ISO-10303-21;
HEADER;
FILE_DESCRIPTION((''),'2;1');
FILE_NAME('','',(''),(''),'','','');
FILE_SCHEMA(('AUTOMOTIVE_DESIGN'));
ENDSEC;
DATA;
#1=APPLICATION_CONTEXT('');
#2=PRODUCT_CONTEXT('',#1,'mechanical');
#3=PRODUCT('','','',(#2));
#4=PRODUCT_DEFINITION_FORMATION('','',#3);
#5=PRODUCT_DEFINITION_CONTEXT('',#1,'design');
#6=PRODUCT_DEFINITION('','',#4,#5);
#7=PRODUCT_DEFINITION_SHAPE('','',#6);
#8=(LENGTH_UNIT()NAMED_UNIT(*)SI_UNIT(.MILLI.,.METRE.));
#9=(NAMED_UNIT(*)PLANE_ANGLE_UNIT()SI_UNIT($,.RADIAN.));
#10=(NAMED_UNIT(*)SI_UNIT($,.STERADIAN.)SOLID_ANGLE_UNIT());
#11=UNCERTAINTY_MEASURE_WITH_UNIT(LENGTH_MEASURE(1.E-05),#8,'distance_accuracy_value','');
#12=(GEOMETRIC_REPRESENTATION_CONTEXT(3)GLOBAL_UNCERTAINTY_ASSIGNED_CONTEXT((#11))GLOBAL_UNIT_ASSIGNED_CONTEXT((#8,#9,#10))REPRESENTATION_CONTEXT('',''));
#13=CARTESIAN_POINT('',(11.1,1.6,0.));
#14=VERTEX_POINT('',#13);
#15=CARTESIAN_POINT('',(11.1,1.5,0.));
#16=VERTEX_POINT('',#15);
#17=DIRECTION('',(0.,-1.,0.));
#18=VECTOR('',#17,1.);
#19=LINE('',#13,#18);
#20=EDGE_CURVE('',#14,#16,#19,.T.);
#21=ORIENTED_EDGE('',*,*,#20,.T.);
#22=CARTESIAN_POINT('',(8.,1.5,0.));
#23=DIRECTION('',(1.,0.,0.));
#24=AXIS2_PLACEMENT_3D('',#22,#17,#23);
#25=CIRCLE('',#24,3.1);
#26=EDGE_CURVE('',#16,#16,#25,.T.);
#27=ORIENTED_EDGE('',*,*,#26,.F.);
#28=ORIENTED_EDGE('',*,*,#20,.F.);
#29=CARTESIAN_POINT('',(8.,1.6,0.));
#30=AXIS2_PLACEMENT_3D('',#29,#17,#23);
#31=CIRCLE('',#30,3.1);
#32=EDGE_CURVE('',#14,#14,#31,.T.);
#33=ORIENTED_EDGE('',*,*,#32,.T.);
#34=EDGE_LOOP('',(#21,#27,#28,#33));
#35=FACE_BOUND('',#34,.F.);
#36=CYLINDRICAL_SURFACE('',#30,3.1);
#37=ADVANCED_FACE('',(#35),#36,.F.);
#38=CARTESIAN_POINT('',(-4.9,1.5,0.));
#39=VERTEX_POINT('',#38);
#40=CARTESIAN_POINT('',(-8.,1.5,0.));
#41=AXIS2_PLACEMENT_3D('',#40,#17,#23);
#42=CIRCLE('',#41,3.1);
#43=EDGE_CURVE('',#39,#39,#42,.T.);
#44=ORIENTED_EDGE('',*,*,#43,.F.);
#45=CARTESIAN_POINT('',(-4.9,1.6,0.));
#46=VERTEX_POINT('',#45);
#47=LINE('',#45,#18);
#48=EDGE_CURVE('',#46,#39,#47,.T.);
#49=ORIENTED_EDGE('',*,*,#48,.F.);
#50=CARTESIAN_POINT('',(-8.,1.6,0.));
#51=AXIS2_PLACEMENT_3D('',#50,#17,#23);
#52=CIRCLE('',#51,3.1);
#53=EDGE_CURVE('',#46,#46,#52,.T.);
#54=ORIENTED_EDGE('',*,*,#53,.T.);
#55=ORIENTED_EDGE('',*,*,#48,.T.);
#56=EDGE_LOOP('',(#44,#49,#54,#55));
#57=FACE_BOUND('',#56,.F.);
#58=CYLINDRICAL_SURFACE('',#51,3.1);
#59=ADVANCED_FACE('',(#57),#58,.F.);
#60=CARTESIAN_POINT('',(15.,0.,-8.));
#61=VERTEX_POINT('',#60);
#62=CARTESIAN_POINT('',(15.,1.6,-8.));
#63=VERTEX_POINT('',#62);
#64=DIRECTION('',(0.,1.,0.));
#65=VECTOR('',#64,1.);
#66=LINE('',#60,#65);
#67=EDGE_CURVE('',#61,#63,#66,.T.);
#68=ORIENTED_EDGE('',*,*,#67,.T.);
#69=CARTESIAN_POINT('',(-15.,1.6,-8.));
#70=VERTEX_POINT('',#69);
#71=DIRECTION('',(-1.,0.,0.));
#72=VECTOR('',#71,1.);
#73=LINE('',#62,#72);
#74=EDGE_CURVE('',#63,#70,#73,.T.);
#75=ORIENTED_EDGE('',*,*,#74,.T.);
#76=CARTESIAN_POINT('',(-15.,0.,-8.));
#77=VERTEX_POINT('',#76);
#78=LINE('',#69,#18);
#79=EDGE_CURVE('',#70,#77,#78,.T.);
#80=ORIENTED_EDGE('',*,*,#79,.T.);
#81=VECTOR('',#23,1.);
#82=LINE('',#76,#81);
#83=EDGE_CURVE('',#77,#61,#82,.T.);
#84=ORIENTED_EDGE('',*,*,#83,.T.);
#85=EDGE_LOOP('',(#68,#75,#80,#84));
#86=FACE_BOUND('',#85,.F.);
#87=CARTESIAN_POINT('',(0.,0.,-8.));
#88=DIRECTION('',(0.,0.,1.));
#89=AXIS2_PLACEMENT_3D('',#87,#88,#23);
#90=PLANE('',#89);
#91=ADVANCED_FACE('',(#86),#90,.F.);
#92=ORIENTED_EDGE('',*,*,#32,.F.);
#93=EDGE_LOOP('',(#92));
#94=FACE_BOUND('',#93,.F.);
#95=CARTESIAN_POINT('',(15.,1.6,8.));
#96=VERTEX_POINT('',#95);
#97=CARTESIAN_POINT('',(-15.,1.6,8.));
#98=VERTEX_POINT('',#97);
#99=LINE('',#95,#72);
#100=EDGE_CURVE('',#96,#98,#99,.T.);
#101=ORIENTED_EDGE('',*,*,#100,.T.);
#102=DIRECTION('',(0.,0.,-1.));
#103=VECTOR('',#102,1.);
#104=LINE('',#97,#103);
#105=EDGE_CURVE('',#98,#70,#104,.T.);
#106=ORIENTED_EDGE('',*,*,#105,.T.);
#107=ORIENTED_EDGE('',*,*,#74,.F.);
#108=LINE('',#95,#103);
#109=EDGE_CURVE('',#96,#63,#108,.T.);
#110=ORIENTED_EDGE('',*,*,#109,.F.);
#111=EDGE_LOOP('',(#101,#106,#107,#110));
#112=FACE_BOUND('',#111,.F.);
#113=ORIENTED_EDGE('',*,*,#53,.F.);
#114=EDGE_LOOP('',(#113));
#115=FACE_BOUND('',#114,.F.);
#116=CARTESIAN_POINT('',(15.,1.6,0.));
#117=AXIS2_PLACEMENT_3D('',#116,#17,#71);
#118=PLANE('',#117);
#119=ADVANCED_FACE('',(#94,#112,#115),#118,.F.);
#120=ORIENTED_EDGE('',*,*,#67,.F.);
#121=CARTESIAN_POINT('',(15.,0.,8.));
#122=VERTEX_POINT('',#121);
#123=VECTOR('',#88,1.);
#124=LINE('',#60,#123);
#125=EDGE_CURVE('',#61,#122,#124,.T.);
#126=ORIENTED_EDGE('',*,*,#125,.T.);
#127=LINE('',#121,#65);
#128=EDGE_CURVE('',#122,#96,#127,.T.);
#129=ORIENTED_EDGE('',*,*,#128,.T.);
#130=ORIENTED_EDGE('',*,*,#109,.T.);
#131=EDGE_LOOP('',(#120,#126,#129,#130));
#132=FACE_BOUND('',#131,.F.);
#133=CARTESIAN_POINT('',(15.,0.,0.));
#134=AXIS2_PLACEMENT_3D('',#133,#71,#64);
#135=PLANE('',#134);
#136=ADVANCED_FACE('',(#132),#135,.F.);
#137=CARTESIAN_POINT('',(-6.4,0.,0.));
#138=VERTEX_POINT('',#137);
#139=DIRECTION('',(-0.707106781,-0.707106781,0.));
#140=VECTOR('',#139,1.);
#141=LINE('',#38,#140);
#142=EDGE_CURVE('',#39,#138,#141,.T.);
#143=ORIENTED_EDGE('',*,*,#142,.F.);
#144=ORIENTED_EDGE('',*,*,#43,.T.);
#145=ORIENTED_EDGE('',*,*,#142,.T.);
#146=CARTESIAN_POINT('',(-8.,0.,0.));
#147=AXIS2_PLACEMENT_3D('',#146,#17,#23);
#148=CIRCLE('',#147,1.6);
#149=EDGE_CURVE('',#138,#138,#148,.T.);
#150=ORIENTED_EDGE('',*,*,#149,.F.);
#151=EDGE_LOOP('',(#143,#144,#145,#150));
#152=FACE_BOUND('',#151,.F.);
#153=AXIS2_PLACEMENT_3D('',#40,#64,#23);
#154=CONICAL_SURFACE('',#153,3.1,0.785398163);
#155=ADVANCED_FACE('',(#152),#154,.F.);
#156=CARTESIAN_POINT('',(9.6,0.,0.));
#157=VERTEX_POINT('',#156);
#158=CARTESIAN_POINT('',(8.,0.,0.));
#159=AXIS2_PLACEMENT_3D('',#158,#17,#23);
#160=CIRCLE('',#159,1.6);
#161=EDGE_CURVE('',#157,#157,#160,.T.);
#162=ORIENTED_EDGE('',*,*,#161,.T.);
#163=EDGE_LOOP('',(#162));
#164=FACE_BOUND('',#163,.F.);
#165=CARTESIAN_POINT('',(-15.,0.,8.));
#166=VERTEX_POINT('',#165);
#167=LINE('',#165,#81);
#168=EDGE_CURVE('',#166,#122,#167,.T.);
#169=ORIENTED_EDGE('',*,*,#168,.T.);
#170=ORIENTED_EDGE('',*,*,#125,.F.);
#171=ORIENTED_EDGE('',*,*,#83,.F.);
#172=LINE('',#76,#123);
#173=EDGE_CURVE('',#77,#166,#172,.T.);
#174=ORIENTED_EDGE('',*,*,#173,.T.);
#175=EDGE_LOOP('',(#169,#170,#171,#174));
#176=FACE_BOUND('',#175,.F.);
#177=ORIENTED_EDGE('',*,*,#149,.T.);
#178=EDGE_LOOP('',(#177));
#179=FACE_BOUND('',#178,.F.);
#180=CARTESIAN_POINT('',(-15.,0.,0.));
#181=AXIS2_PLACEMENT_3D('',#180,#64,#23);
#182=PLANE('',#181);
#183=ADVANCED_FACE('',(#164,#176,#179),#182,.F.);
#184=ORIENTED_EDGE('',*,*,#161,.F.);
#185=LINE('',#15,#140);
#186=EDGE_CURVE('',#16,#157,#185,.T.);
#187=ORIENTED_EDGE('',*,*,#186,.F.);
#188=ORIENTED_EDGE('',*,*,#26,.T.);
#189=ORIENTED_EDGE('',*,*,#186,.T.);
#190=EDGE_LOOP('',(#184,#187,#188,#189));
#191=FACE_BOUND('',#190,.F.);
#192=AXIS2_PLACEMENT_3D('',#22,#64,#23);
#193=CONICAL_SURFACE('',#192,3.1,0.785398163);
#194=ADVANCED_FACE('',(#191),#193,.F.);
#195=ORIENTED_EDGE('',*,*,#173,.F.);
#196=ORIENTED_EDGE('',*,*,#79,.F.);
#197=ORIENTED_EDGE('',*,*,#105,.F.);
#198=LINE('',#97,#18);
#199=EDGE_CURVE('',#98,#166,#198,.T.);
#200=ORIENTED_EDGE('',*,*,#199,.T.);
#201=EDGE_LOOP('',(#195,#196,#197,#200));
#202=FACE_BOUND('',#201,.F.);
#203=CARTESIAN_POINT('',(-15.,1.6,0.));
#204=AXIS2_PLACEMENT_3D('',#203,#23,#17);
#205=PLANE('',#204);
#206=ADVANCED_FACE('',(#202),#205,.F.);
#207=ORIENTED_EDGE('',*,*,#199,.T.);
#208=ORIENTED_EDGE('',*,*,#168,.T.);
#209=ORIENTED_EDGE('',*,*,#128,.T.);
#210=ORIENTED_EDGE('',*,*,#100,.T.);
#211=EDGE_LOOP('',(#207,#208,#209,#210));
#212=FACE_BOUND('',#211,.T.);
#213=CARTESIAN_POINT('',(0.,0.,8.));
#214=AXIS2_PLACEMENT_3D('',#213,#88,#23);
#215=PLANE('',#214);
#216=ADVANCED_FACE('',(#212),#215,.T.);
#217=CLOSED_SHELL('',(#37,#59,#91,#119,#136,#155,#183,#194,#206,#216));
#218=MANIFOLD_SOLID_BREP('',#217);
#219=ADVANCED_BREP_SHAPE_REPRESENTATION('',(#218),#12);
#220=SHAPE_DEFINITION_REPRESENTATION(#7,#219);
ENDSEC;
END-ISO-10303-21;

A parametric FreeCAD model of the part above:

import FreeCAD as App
import Part
import Sketcher
Q = App.Units.Quantity


def add_polygon(sketch, points):
    """Adds a closed chain of lines whose ends are joined by coincident constraints."""
    first, n = sketch.GeometryCount, len(points)
    for a, b in zip(points, points[1:] + points[:1]):
        sketch.addGeometry(Part.LineSegment(App.Vector(*a, 0), App.Vector(*b, 0)), False)
    for i in range(n):
        sketch.addConstraint(Sketcher.Constraint("Coincident", first + i, 2, first + (i + 1) % n, 1))

doc = App.newDocument("Part")
body = doc.addObject("PartDesign::Body", "Body")

# Sketch on XY plane
sketch1 = body.newObject("Sketcher::SketchObject", "Sketch")
sketch1.AttachmentSupport = (doc.getObject("XY_Plane"), [""])
sketch1.MapMode = "FlatFace"
add_polygon(sketch1, [(-15, 1.6), (-15, 0), (15, 0), (15, 1.6)])  # lines 0-3
sketch1.addConstraint(Sketcher.Constraint("Vertical", 0))
sketch1.addConstraint(Sketcher.Constraint("Horizontal", 1))
sketch1.addConstraint(Sketcher.Constraint("Vertical", 2))
sketch1.addConstraint(Sketcher.Constraint("Horizontal", 3))
sketch1.addConstraint(Sketcher.Constraint("Symmetric", 0, 2, 1, 2, -1, 1))
sketch1.addConstraint(Sketcher.Constraint("DistanceX", 1, 1, 1, 2, 30.0))
sketch1.addConstraint(Sketcher.Constraint("DistanceY", 0, 2, 0, 1, 1.6))
pad1 = body.newObject("PartDesign::Pad", "Pad")
pad1.Profile = sketch1
pad1.Length = 16
pad1.Midplane = True

# Sketch on XY plane
sketch2 = body.newObject("Sketcher::SketchObject", "Sketch001")
sketch2.AttachmentSupport = (doc.getObject("XY_Plane"), [""])
sketch2.MapMode = "FlatFace"
add_polygon(sketch2, [(8, 1.6), (8, 0), (9.6, 0), (11.1, 1.5), (11.1, 1.6)])  # lines 0-4
sketch2.addGeometry(Part.LineSegment(App.Vector(8, 1.6, 0), App.Vector(8, 0, 0)), True)  # axis
sketch2.addConstraint(Sketcher.Constraint("Vertical", 0))
sketch2.addConstraint(Sketcher.Constraint("Horizontal", 1))
sketch2.addConstraint(Sketcher.Constraint("Vertical", 3))
sketch2.addConstraint(Sketcher.Constraint("Horizontal", 4))
sketch2.addConstraint(Sketcher.Constraint("Vertical", 5))
sketch2.addConstraint(Sketcher.Constraint("Coincident", 5, 1, 4, 2))
sketch2.addConstraint(Sketcher.Constraint("PointOnObject", 0, 2, -1))
sketch2.addConstraint(Sketcher.Constraint("PointOnObject", 5, 2, -1))
sketch2.addConstraint(Sketcher.Constraint("Equal", 1, 0))
sketch2.addConstraint(Sketcher.Constraint("Angle", 2, Q("45 deg")))
sketch2.addConstraint(Sketcher.Constraint("DistanceX", 1, 1, 1, 2, 1.6))
sketch2.addConstraint(Sketcher.Constraint("DistanceX", 4, 2, 4, 1, 3.1))
sketch2.addConstraint(Sketcher.Constraint("DistanceX", -1, 1, 0, 2, 8.0))
groove = body.newObject("PartDesign::Groove", "Groove")
groove.Profile = sketch2
groove.ReferenceAxis = (sketch2, ["Axis0"])
groove.Angle = 360

# Sketch on XY plane
sketch3 = body.newObject("Sketcher::SketchObject", "Sketch002")
sketch3.AttachmentSupport = (doc.getObject("XY_Plane"), [""])
sketch3.MapMode = "FlatFace"
add_polygon(sketch3, [(-8, 1.6), (-8, 0), (-6.4, 0), (-4.9, 1.5), (-4.9, 1.6)])  # lines 0-4
sketch3.addGeometry(Part.LineSegment(App.Vector(-8, 1.6, 0), App.Vector(-8, 0, 0)), True)  # axis
sketch3.addConstraint(Sketcher.Constraint("Vertical", 0))
sketch3.addConstraint(Sketcher.Constraint("Horizontal", 1))
sketch3.addConstraint(Sketcher.Constraint("Vertical", 3))
sketch3.addConstraint(Sketcher.Constraint("Horizontal", 4))
sketch3.addConstraint(Sketcher.Constraint("Vertical", 5))
sketch3.addConstraint(Sketcher.Constraint("Coincident", 5, 1, 4, 2))
sketch3.addConstraint(Sketcher.Constraint("PointOnObject", 0, 2, -1))
sketch3.addConstraint(Sketcher.Constraint("PointOnObject", 5, 2, -1))
sketch3.addConstraint(Sketcher.Constraint("Equal", 1, 0))
sketch3.addConstraint(Sketcher.Constraint("Angle", 2, Q("45 deg")))
sketch3.addConstraint(Sketcher.Constraint("DistanceX", 1, 1, 1, 2, 1.6))
sketch3.addConstraint(Sketcher.Constraint("DistanceX", 4, 2, 4, 1, 3.1))
sketch3.addConstraint(Sketcher.Constraint("DistanceX", 0, 2, -1, 1, 8.0))
groove2 = body.newObject("PartDesign::Groove", "Groove001")
groove2.Profile = sketch3
groove2.ReferenceAxis = (sketch3, ["Axis0"])
groove2.Angle = 360

doc.recompute()
